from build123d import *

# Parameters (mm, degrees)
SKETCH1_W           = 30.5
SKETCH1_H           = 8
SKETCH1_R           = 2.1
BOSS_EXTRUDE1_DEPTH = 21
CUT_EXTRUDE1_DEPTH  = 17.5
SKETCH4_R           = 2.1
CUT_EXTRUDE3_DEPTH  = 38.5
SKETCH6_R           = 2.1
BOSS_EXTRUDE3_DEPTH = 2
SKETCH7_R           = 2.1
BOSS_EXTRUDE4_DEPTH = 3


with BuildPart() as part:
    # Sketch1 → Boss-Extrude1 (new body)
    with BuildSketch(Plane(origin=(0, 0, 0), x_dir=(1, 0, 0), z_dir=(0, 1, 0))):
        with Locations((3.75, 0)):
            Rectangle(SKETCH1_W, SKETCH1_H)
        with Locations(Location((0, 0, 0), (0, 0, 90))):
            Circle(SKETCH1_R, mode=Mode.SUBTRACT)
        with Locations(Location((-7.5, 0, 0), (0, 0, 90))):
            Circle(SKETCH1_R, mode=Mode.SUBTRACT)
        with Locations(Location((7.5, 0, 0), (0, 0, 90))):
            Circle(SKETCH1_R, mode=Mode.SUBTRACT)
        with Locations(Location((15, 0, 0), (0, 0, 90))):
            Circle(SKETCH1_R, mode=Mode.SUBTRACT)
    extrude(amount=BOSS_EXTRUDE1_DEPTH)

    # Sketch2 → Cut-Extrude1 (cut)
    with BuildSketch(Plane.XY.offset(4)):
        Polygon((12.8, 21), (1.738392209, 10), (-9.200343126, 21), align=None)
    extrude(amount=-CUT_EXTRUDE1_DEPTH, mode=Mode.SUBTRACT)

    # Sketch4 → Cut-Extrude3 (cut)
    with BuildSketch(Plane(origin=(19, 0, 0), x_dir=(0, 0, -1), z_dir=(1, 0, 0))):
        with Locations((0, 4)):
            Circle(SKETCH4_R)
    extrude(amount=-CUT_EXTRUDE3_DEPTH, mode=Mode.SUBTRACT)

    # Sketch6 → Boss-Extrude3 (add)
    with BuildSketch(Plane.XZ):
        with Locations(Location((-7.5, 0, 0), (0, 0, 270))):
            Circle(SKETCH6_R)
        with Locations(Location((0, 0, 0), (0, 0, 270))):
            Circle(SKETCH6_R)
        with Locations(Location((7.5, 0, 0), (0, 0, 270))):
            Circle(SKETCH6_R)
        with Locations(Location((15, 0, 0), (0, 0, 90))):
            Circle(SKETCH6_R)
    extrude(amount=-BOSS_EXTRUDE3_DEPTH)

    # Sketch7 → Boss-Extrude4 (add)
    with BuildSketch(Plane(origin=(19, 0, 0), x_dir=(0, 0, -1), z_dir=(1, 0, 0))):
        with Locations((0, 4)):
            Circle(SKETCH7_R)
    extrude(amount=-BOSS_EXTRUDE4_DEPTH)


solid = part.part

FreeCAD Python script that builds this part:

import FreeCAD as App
import Part
import Sketcher

V = App.Vector
Q = App.Units.Quantity


def add_polygon(sketch, points):
    """Adds a closed chain of lines whose ends are joined by coincident constraints."""
    first, n = sketch.GeometryCount, len(points)
    for a, b in zip(points, points[1:] + points[:1]):
        sketch.addGeometry(Part.LineSegment(App.Vector(*a, 0), App.Vector(*b, 0)), False)
    for i in range(n):
        sketch.addConstraint(Sketcher.Constraint("Coincident", first + i, 2, first + (i + 1) % n, 1))

doc = App.newDocument("Part")
body = doc.addObject("PartDesign::Body", "Body")

# Sketch on XZ plane
sketch1 = body.newObject("Sketcher::SketchObject", "Sketch")
sketch1.AttachmentSupport = (doc.getObject("XZ_Plane"), [""])
sketch1.MapMode = "FlatFace"
add_polygon(sketch1, [(-11.5, -4), (-11.5, 4), (19, 4), (19, -4)])  # lines 0-3
sketch1.addGeometry(Part.Circle(V(-7.5, 0, 0), V(0, 0, 1), 2.1), False)  # 4
sketch1.addGeometry(Part.Circle(V(0, 0, 0), V(0, 0, 1), 2.1), False)  # 5
sketch1.addGeometry(Part.Circle(V(7.5, 0, 0), V(0, 0, 1), 2.1), False)  # 6
sketch1.addGeometry(Part.Circle(V(15, 0, 0), V(0, 0, 1), 2.1), False)  # 7
sketch1.addConstraint([
    Sketcher.Constraint("Vertical", 0),
    Sketcher.Constraint("Horizontal", 1),
    Sketcher.Constraint("Vertical", 2),
    Sketcher.Constraint("Horizontal", 3),
    Sketcher.Constraint("Coincident", 5, 3, -1, 1),
    Sketcher.Constraint("Equal", 4, 5),
    Sketcher.Constraint("Equal", 5, 6),
    Sketcher.Constraint("Equal", 6, 7),
    Sketcher.Constraint("Symmetric", 4, 3, 6, 3, -1, 1),
    Sketcher.Constraint("PointOnObject", 4, 3, -1),
    Sketcher.Constraint("PointOnObject", 7, 3, -1),
    Sketcher.Constraint("Diameter", 4, Q("4.2 mm")),
    Sketcher.Constraint("DistanceY", 0, 1, 0, 2, Q("8 mm")),
    Sketcher.Constraint("DistanceX", 1, 1, 1, 2, Q("30.5 mm")),
    Sketcher.Constraint("DistanceX", -1, 1, 7, 3, Q("15 mm")),
    Sketcher.Constraint("DistanceY", -1, 1, 0, 2, Q("4 mm")),
    Sketcher.Constraint("DistanceX", -1, 1, 1, 2, Q("19 mm")),
    Sketcher.Constraint("DistanceX", 4, 3, 6, 3, Q("15 mm")),
])
pad1 = body.newObject("PartDesign::Pad", "Pad")
pad1.Profile = sketch1
pad1.Length = 21
pad1.Reversed = True

# Sketch on XY plane
sketch2 = body.newObject("Sketcher::SketchObject", "Sketch001")
sketch2.AttachmentSupport = (doc.getObject("XY_Plane"), [""])
sketch2.MapMode = "FlatFace"
sketch2.AttachmentOffset = App.Placement(V(0, 0, 4), App.Rotation())
add_polygon(sketch2, [(2, 10), (13, 21), (-9, 21)])  # lines 0-2
sketch2.addConstraint([
    Sketcher.Constraint("Horizontal", 1),
    Sketcher.Constraint("Perpendicular", 0, 2),
    Sketcher.Constraint("DistanceY", -1, 1, 0, 2, Q("21 mm")),
    Sketcher.Constraint("DistanceY", -1, 1, 2, 2, Q("10 mm")),
    Sketcher.Constraint("DistanceX", -1, 1, 0, 2, Q("12.8 mm")),
    Sketcher.Constraint("Angle", 0, Q("44.84 deg")),
])
pocket1 = body.newObject("PartDesign::Pocket", "Pocket")
pocket1.Profile = sketch2
pocket1.Length = 17.5

# Sketch on YZ plane
sketch3 = body.newObject("Sketcher::SketchObject", "Sketch002")
sketch3.AttachmentSupport = (doc.getObject("YZ_Plane"), [""])
sketch3.MapMode = "FlatFace"
sketch3.AttachmentOffset = App.Placement(V(0, 0, 19), App.Rotation())
sketch3.addGeometry(Part.Circle(V(4, 0, 0), V(0, 0, 1), 2.1), False)
sketch3.addConstraint([
    Sketcher.Constraint("PointOnObject", 0, 3, -1),
    Sketcher.Constraint("Diameter", 0, Q("4.2 mm")),
    Sketcher.Constraint("DistanceX", -1, 1, 0, 3, Q("4 mm")),
])
pocket2 = body.newObject("PartDesign::Pocket", "Pocket001")
pocket2.Profile = sketch3
pocket2.Length = 38.5

# Sketch on XZ plane
sketch4 = body.newObject("Sketcher::SketchObject", "Sketch003")
sketch4.AttachmentSupport = (doc.getObject("XZ_Plane"), [""])
sketch4.MapMode = "FlatFace"
sketch4.addGeometry([
    Part.Circle(V(-7.5, 0, 0), V(0, 0, 1), 2.1),
    Part.Circle(V(0, 0, 0), V(0, 0, 1), 2.1),
    Part.Circle(V(7.5, 0, 0), V(0, 0, 1), 2.1),
    Part.Circle(V(15, 0, 0), V(0, 0, 1), 2.1),
], False)
sketch4.addConstraint([
    Sketcher.Constraint("Coincident", 1, 3, -1, 1),
    Sketcher.Constraint("Equal", 0, 1),
    Sketcher.Constraint("Equal", 1, 2),
    Sketcher.Constraint("Equal", 2, 3),
    Sketcher.Constraint("Symmetric", 0, 3, 2, 3, -1, 1),
    Sketcher.Constraint("PointOnObject", 0, 3, -1),
    Sketcher.Constraint("PointOnObject", 3, 3, -1),
    Sketcher.Constraint("Diameter", 0, Q("4.2 mm")),
    Sketcher.Constraint("DistanceX", -1, 1, 3, 3, Q("15 mm")),
    Sketcher.Constraint("DistanceX", 0, 3, 2, 3, Q("15 mm")),
])
pad2 = body.newObject("PartDesign::Pad", "Pad001")
pad2.Profile = sketch4
pad2.Length = 2
pad2.Reversed = True

# Sketch on YZ plane
sketch5 = body.newObject("Sketcher::SketchObject", "Sketch004")
sketch5.AttachmentSupport = (doc.getObject("YZ_Plane"), [""])
sketch5.MapMode = "FlatFace"
sketch5.AttachmentOffset = App.Placement(V(0, 0, 19), App.Rotation())
sketch5.addGeometry(Part.Circle(V(4, 0, 0), V(0, 0, 1), 2.1), False)
sketch5.addConstraint([
    Sketcher.Constraint("PointOnObject", 0, 3, -1),
    Sketcher.Constraint("Diameter", 0, Q("4.2 mm")),
    Sketcher.Constraint("DistanceX", -1, 1, 0, 3, Q("4 mm")),
])
pad3 = body.newObject("PartDesign::Pad", "Pad002")
pad3.Profile = sketch5
pad3.Length = 3
pad3.Reversed = True

doc.recompute()
